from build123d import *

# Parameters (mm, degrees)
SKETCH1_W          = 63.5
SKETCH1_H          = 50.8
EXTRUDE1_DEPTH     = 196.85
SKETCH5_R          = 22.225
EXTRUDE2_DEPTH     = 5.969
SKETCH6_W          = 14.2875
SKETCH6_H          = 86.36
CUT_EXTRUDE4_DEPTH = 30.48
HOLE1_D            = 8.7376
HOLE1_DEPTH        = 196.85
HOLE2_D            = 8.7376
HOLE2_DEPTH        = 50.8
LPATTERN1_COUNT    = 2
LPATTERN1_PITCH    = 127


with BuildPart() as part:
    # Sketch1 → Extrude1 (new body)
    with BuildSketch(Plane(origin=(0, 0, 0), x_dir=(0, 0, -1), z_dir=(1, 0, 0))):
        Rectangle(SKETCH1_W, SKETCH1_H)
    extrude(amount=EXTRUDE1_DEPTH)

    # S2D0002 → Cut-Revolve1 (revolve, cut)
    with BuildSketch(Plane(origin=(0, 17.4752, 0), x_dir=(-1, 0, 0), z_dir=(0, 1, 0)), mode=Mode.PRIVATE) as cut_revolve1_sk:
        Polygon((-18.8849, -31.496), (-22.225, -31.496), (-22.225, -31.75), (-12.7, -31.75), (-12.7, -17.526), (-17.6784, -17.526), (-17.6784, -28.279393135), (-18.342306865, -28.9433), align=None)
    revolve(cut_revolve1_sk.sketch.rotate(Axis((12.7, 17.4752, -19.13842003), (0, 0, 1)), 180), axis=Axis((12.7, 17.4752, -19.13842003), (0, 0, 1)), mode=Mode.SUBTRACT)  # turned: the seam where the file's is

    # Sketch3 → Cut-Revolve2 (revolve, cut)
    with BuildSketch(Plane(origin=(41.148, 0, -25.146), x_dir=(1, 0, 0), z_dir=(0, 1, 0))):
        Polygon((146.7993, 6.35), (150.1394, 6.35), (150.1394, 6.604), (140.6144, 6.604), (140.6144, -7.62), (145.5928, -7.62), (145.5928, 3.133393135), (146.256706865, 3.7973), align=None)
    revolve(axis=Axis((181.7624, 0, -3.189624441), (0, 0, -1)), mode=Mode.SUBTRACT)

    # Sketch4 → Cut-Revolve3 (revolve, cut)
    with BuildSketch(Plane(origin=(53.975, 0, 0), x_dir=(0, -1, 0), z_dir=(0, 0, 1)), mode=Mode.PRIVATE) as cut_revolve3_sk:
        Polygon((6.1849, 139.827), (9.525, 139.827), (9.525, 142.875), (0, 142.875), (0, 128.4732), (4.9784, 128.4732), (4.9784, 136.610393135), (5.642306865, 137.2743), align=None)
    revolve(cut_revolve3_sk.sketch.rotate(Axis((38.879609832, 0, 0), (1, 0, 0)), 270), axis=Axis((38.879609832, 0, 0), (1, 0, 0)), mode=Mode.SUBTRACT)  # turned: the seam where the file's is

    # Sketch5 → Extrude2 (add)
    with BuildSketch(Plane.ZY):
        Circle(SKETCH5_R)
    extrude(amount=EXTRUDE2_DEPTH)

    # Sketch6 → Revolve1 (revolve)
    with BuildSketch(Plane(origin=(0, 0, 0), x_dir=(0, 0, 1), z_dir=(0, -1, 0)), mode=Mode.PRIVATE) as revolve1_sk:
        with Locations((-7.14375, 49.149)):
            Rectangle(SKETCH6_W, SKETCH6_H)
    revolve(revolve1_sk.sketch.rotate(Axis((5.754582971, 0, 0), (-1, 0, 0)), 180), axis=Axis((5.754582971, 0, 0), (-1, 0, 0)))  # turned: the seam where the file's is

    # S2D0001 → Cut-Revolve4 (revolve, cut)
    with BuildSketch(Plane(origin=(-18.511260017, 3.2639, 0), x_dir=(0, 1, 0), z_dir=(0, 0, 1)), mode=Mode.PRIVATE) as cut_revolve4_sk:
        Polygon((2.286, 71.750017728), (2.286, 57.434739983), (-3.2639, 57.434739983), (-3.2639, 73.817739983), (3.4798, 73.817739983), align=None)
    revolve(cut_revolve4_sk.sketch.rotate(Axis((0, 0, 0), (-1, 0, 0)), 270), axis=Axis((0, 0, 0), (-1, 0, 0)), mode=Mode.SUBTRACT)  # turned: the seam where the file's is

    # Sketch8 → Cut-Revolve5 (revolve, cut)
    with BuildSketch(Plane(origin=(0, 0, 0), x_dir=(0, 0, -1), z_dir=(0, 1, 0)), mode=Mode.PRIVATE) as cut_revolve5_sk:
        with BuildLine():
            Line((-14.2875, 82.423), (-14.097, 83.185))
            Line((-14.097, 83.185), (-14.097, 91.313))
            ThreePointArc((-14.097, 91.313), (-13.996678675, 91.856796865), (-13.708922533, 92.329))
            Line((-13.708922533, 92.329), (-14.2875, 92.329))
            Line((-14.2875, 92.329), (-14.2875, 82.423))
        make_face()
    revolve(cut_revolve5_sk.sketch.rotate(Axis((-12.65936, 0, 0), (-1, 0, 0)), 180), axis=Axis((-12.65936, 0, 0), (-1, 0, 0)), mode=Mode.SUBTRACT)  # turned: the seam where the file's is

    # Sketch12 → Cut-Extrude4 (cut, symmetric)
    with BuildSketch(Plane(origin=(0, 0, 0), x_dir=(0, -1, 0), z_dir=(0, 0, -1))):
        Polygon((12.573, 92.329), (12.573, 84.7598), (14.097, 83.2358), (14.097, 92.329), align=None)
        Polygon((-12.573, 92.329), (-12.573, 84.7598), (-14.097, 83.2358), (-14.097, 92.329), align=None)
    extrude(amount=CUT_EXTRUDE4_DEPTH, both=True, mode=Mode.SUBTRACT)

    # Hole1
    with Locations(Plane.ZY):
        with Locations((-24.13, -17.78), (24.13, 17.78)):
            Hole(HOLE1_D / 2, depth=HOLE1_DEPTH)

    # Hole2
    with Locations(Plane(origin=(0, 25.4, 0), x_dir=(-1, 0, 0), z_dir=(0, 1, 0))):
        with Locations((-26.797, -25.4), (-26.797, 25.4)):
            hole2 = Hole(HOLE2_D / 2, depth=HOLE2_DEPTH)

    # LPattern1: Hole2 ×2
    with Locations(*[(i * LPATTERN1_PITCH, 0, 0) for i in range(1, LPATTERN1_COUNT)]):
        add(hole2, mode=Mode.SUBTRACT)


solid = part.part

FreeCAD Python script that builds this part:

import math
import FreeCAD as App
import Part
import Sketcher
from FreeCAD import Vector
Q = App.Units.Quantity

doc = App.newDocument("Part")
body = doc.addObject("PartDesign::Body", "Body")

# Sketch on YZ plane
sketch1 = doc.addObject("Sketcher::SketchObject", "Sketch")
body.addObject(sketch1)
sketch1.AttachmentSupport = (doc.YZ_Plane, [""])
sketch1.MapMode = "FlatFace"
sketch1.addGeometry([
    Part.LineSegment(Vector(25, 32, 0), Vector(-25, 32, 0)),
    Part.LineSegment(Vector(-25, 32, 0), Vector(-25, -32, 0)),
    Part.LineSegment(Vector(-25, -32, 0), Vector(25, -32, 0)),
    Part.LineSegment(Vector(25, -32, 0), Vector(25, 32, 0)),
], False)
sketch1.addConstraint([
    Sketcher.Constraint("Coincident", 0, 2, 1, 1),
    Sketcher.Constraint("Coincident", 1, 2, 2, 1),
    Sketcher.Constraint("Coincident", 2, 2, 3, 1),
    Sketcher.Constraint("Coincident", 3, 2, 0, 1),
    Sketcher.Constraint("Horizontal", 0),
    Sketcher.Constraint("Vertical", 1),
    Sketcher.Constraint("Horizontal", 2),
    Sketcher.Constraint("Vertical", 3),
    Sketcher.Constraint("Symmetric", 0, 2, 2, 2, -1, 1),
    Sketcher.Constraint("DistanceX", 0, 2, 0, 1, Q("2 in")),
    Sketcher.Constraint("DistanceY", 1, 2, 1, 1, Q("2.5 in")),
])
pad1 = doc.addObject("PartDesign::Pad", "Pad")
body.addObject(pad1)
pad1.Profile = sketch1
pad1.Length = Q("7.75 in")

# Sketch on XZ plane
sketch2 = doc.addObject("Sketcher::SketchObject", "Sketch001")
body.addObject(sketch2)
sketch2.AttachmentSupport = (doc.XZ_Plane, [""])
sketch2.MapMode = "FlatFace"
sketch2.AttachmentOffset = App.Placement(Vector(0, 0, -0.688 * 25.4), App.Rotation())
sketch2.addGeometry([
    Part.LineSegment(Vector(18.88, -31.5, 0), Vector(22.23, -31.5, 0)),  # 0
    Part.LineSegment(Vector(22.23, -31.5, 0), Vector(22.23, -31.75, 0)),  # 1
    Part.LineSegment(Vector(22.23, -31.75, 0), Vector(12.7, -31.75, 0)),  # 2
    Part.LineSegment(Vector(12.7, -31.75, 0), Vector(12.7, -17.53, 0)),  # 3
    Part.LineSegment(Vector(12.7, -17.53, 0), Vector(17.68, -17.53, 0)),  # 4
    Part.LineSegment(Vector(17.68, -17.53, 0), Vector(17.68, -28.28, 0)),  # 5
    Part.LineSegment(Vector(17.68, -28.28, 0), Vector(18.34, -28.94, 0)),  # 6
    Part.LineSegment(Vector(18.34, -28.94, 0), Vector(18.88, -31.5, 0)),  # 7
], False)
sketch2.addGeometry(Part.LineSegment(Vector(12.7, -31.75, 0), Vector(12.7, -17.53, 0)), True)  # axis
sketch2.addConstraint([
    Sketcher.Constraint("Coincident", 0, 2, 1, 1),
    Sketcher.Constraint("Coincident", 1, 2, 2, 1),
    Sketcher.Constraint("Coincident", 2, 2, 3, 1),
    Sketcher.Constraint("Coincident", 3, 2, 4, 1),
    Sketcher.Constraint("Coincident", 4, 2, 5, 1),
    Sketcher.Constraint("Coincident", 5, 2, 6, 1),
    Sketcher.Constraint("Coincident", 6, 2, 7, 1),
    Sketcher.Constraint("Coincident", 7, 2, 0, 1),
    Sketcher.Constraint("Horizontal", 0),
    Sketcher.Constraint("Vertical", 1),
    Sketcher.Constraint("Horizontal", 2),
    Sketcher.Constraint("Vertical", 3),
    Sketcher.Constraint("Horizontal", 4),
    Sketcher.Constraint("Vertical", 5),
    Sketcher.Constraint("Vertical", 8),
    Sketcher.Constraint("Coincident", 8, 1, 2, 2),
    Sketcher.Constraint("Horizontal", 4, 2, 8, 2),
    Sketcher.Constraint("Angle", 6, Q("-45 deg")),
    Sketcher.Constraint("Angle", 7, Q("-78 deg")),
    Sketcher.Constraint("DistanceY", 1, 2, 1, 1, Q("0.01 in")),
    Sketcher.Constraint("DistanceY", 3, 1, 3, 2, Q("0.56 in")),
    Sketcher.Constraint("DistanceX", -1, 1, 2, 2, Q("0.5 in")),
    Sketcher.Constraint("DistanceX", 2, 2, 2, 1, Q("0.375 in")),
    Sketcher.Constraint("DistanceX", 4, 1, 4, 2, Q("0.196 in")),
    Sketcher.Constraint("DistanceY", 0, 2, -1, 1, Q("1.24 in")),
    Sketcher.Constraint("DistanceX", 0, 1, 0, 2, Q("0.1315 in")),
    Sketcher.Constraint("DistanceY", 6, 2, -1, 1, Q("1.1395 in")),
])
groove = doc.addObject("PartDesign::Groove", "Groove")
body.addObject(groove)
groove.Profile = sketch2
groove.ReferenceAxis = (sketch2, ["Axis0"])
groove.Angle = 360

# Sketch on XZ plane
sketch3 = doc.addObject("Sketcher::SketchObject", "Sketch002")
body.addObject(sketch3)
sketch3.AttachmentSupport = (doc.XZ_Plane, [""])
sketch3.MapMode = "FlatFace"
sketch3.addGeometry([
    Part.LineSegment(Vector(187.95, -31.5, 0), Vector(191.29, -31.5, 0)),  # 0
    Part.LineSegment(Vector(191.29, -31.5, 0), Vector(191.29, -31.75, 0)),  # 1
    Part.LineSegment(Vector(191.29, -31.75, 0), Vector(181.76, -31.75, 0)),  # 2
    Part.LineSegment(Vector(181.76, -31.75, 0), Vector(181.76, -17.53, 0)),  # 3
    Part.LineSegment(Vector(181.76, -17.53, 0), Vector(186.74, -17.53, 0)),  # 4
    Part.LineSegment(Vector(186.74, -17.53, 0), Vector(186.74, -28.28, 0)),  # 5
    Part.LineSegment(Vector(186.74, -28.28, 0), Vector(187.4, -28.94, 0)),  # 6
    Part.LineSegment(Vector(187.4, -28.94, 0), Vector(187.95, -31.5, 0)),  # 7
], False)
sketch3.addGeometry(Part.LineSegment(Vector(181.76, -17.53, 0), Vector(181.76, -31.75, 0)), True)  # axis
sketch3.addConstraint([
    Sketcher.Constraint("Coincident", 0, 2, 1, 1),
    Sketcher.Constraint("Coincident", 1, 2, 2, 1),
    Sketcher.Constraint("Coincident", 2, 2, 3, 1),
    Sketcher.Constraint("Coincident", 3, 2, 4, 1),
    Sketcher.Constraint("Coincident", 4, 2, 5, 1),
    Sketcher.Constraint("Coincident", 5, 2, 6, 1),
    Sketcher.Constraint("Coincident", 6, 2, 7, 1),
    Sketcher.Constraint("Coincident", 7, 2, 0, 1),
    Sketcher.Constraint("Horizontal", 0),
    Sketcher.Constraint("Vertical", 1),
    Sketcher.Constraint("Horizontal", 2),
    Sketcher.Constraint("Vertical", 3),
    Sketcher.Constraint("Horizontal", 4),
    Sketcher.Constraint("Vertical", 5),
    Sketcher.Constraint("Vertical", 8),
    Sketcher.Constraint("Coincident", 8, 1, 3, 2),
    Sketcher.Constraint("Horizontal", 1, 2, 8, 2),
    Sketcher.Constraint("Angle", 6, Q("-45 deg")),
    Sketcher.Constraint("Angle", 7, Q("-78 deg")),
    Sketcher.Constraint("DistanceY", 1, 2, 1, 1, Q("0.01 in")),
    Sketcher.Constraint("DistanceY", 3, 1, 3, 2, Q("0.56 in")),
    Sketcher.Constraint("DistanceX", 2, 2, 2, 1, Q("0.375 in")),
    Sketcher.Constraint("DistanceX", 4, 1, 4, 2, Q("0.196 in")),
    Sketcher.Constraint("DistanceY", 0, 2, -1, 1, Q("1.24 in")),
    Sketcher.Constraint("DistanceX", 0, 1, 0, 2, Q("0.1315 in")),
    Sketcher.Constraint("DistanceX", -1, 1, 0, 2, Q("7.531 in")),
    Sketcher.Constraint("DistanceY", 6, 2, -1, 1, Q("1.1395 in")),
])
groove2 = doc.addObject("PartDesign::Groove", "Groove001")
body.addObject(groove2)
groove2.Profile = sketch3
groove2.ReferenceAxis = (sketch3, ["Axis0"])
groove2.Angle = 360

# Sketch on XY plane
sketch4 = doc.addObject("Sketcher::SketchObject", "Sketch003")
body.addObject(sketch4)
sketch4.AttachmentSupport = (doc.XY_Plane, [""])
sketch4.MapMode = "FlatFace"
sketch4.addGeometry([
    Part.LineSegment(Vector(193.8, -6.2, 0), Vector(193.8, -9.5, 0)),  # 0
    Part.LineSegment(Vector(193.8, -9.5, 0), Vector(196.8, -9.5, 0)),  # 1
    Part.LineSegment(Vector(196.8, -9.5, 0), Vector(196.8, 0, 0)),  # 2
    Part.LineSegment(Vector(196.8, 0, 0), Vector(182.4, 0, 0)),  # 3
    Part.LineSegment(Vector(182.4, 0, 0), Vector(182.4, -5, 0)),  # 4
    Part.LineSegment(Vector(182.4, -5, 0), Vector(190.6, -5, 0)),  # 5
    Part.LineSegment(Vector(190.6, -5, 0), Vector(191.2, -5.6, 0)),  # 6
    Part.LineSegment(Vector(191.2, -5.6, 0), Vector(193.8, -6.2, 0)),  # 7
], False)
sketch4.addConstraint([
    Sketcher.Constraint("Coincident", 0, 2, 1, 1),
    Sketcher.Constraint("Coincident", 1, 2, 2, 1),
    Sketcher.Constraint("Coincident", 2, 2, 3, 1),
    Sketcher.Constraint("Coincident", 3, 2, 4, 1),
    Sketcher.Constraint("Coincident", 4, 2, 5, 1),
    Sketcher.Constraint("Coincident", 5, 2, 6, 1),
    Sketcher.Constraint("Coincident", 6, 2, 7, 1),
    Sketcher.Constraint("Coincident", 7, 2, 0, 1),
    Sketcher.Constraint("Vertical", 0),
    Sketcher.Constraint("Horizontal", 1),
    Sketcher.Constraint("Vertical", 2),
    Sketcher.Constraint("Horizontal", 3),
    Sketcher.Constraint("Vertical", 4),
    Sketcher.Constraint("Horizontal", 5),
    Sketcher.Constraint("PointOnObject", 2, 2, -1),
    Sketcher.Constraint("Angle", 6, Q("-45 deg")),
    Sketcher.Constraint("Angle", 7, Q("-12 deg")),
    Sketcher.Constraint("DistanceX", 1, 1, 1, 2, Q("0.12 in")),
    Sketcher.Constraint("DistanceX", 3, 2, 3, 1, Q("0.567 in")),
    Sketcher.Constraint("DistanceY", 2, 1, 2, 2, Q("0.375 in")),
    Sketcher.Constraint("DistanceY", 4, 2, 4, 1, Q("0.196 in")),
    Sketcher.Constraint("DistanceX", -1, 1, 0, 2, Q("7.63 in")),
    Sketcher.Constraint("DistanceY", 0, 2, 0, 1, Q("0.1315 in")),
    Sketcher.Constraint("DistanceX", -1, 1, 6, 2, Q("7.5295 in")),
])
groove3 = doc.addObject("PartDesign::Groove", "Groove002")
body.addObject(groove3)
groove3.Profile = sketch4
groove3.ReferenceAxis = (sketch4, ["H_Axis"])
groove3.Angle = 360

# Sketch on YZ plane
sketch5 = doc.addObject("Sketcher::SketchObject", "Sketch004")
body.addObject(sketch5)
sketch5.AttachmentSupport = (doc.YZ_Plane, [""])
sketch5.MapMode = "FlatFace"
sketch5.addGeometry(Part.Circle(Vector(0, 0, 0), Vector(0, 0, 1), 22), False)
sketch5.addConstraint([
    Sketcher.Constraint("Coincident", 0, 3, -1, 1),
    Sketcher.Constraint("Diameter", 0, Q("1.75 in")),
])
pad2 = doc.addObject("PartDesign::Pad", "Pad001")
body.addObject(pad2)
pad2.Profile = sketch5
pad2.Length = Q("0.235 in")
pad2.Reversed = True

# Sketch on XZ plane
sketch6 = doc.addObject("Sketcher::SketchObject", "Sketch005")
body.addObject(sketch6)
sketch6.AttachmentSupport = (doc.XZ_Plane, [""])
sketch6.MapMode = "FlatFace"
sketch6.addGeometry([
    Part.LineSegment(Vector(-92, -14, 0), Vector(-6, -14, 0)),
    Part.LineSegment(Vector(-6, -14, 0), Vector(-6, 0, 0)),
    Part.LineSegment(Vector(-6, 0, 0), Vector(-92, 0, 0)),
    Part.LineSegment(Vector(-92, 0, 0), Vector(-92, -14, 0)),
], False)
sketch6.addConstraint([
    Sketcher.Constraint("Coincident", 0, 2, 1, 1),
    Sketcher.Constraint("Coincident", 1, 2, 2, 1),
    Sketcher.Constraint("Coincident", 2, 2, 3, 1),
    Sketcher.Constraint("Coincident", 3, 2, 0, 1),
    Sketcher.Constraint("Horizontal", 0),
    Sketcher.Constraint("Vertical", 1),
    Sketcher.Constraint("Horizontal", 2),
    Sketcher.Constraint("Vertical", 3),
    Sketcher.Constraint("PointOnObject", 1, 2, -1),
    Sketcher.Constraint("DistanceX", 0, 1, 0, 2, Q("3.4 in")),
    Sketcher.Constraint("DistanceY", 1, 1, 1, 2, Q("0.5625 in")),
    Sketcher.Constraint("DistanceX", 0, 2, -1, 1, Q("0.235 in")),
])
revolution = doc.addObject("PartDesign::Revolution", "Revolution")
body.addObject(revolution)
revolution.Profile = sketch6
revolution.ReferenceAxis = (sketch6, ["H_Axis"])
revolution.Angle = 360

# Sketch on XY plane
sketch7 = doc.addObject("Sketcher::SketchObject", "Sketch006")
body.addObject(sketch7)
sketch7.AttachmentSupport = (doc.XY_Plane, [""])
sketch7.MapMode = "FlatFace"
sketch7.addGeometry([
    Part.LineSegment(Vector(-75.9, 5.5, 0), Vector(-90.3, 5.5, 0)),  # 0
    Part.LineSegment(Vector(-90.3, 5.5, 0), Vector(-92.3, 6.7, 0)),  # 1
    Part.LineSegment(Vector(-92.3, 6.7, 0), Vector(-92.3, 0, 0)),  # 2
    Part.LineSegment(Vector(-92.3, 0, 0), Vector(-75.9, 0, 0)),  # 3
    Part.LineSegment(Vector(-75.9, 0, 0), Vector(-75.9, 5.5, 0)),  # 4
], False)
sketch7.addConstraint([
    Sketcher.Constraint("Coincident", 0, 2, 1, 1),
    Sketcher.Constraint("Coincident", 1, 2, 2, 1),
    Sketcher.Constraint("Coincident", 2, 2, 3, 1),
    Sketcher.Constraint("Coincident", 3, 2, 4, 1),
    Sketcher.Constraint("Coincident", 4, 2, 0, 1),
    Sketcher.Constraint("Horizontal", 0),
    Sketcher.Constraint("Vertical", 2),
    Sketcher.Constraint("Horizontal", 3),
    Sketcher.Constraint("Vertical", 4),
    Sketcher.Constraint("PointOnObject", 2, 2, -1),
    Sketcher.Constraint("Angle", 1, Q("150 deg")),
    Sketcher.Constraint("DistanceX", 3, 1, 3, 2, Q("0.645 in")),
    Sketcher.Constraint("DistanceX", 3, 2, -1, 1, Q("2.99 in")),
    Sketcher.Constraint("Distance", 1, Q("0.094 in")),
    Sketcher.Constraint("DistanceY", 2, 2, 2, 1, Q("0.2655 in")),
])
groove4 = doc.addObject("PartDesign::Groove", "Groove003")
body.addObject(groove4)
groove4.Profile = sketch7
groove4.ReferenceAxis = (sketch7, ["H_Axis"])
groove4.Angle = 360

# Sketch on XZ plane
sketch8 = doc.addObject("Sketcher::SketchObject", "Sketch007")
body.addObject(sketch8)
sketch8.AttachmentSupport = (doc.XZ_Plane, [""])
sketch8.MapMode = "FlatFace"
sketch8.addGeometry([
    Part.LineSegment(Vector(-82.4, 14.3, 0), Vector(-83.2, 14.1, 0)),  # 0
    Part.LineSegment(Vector(-83.2, 14.1, 0), Vector(-91.3, 14.1, 0)),  # 1
    Part.ArcOfCircle(Part.Circle(Vector(-91.3, 12.6, 0), Vector(0, 0, 1), 1.5), math.radians(90), math.radians(132)),  # 2
    Part.LineSegment(Vector(-92.3, 13.7, 0), Vector(-92.3, 14.3, 0)),  # 3
    Part.LineSegment(Vector(-92.3, 14.3, 0), Vector(-82.4, 14.3, 0)),  # 4
], False)
sketch8.addConstraint([
    Sketcher.Constraint("Coincident", 0, 2, 1, 1),
    Sketcher.Constraint("Tangent", 1, 2, 2, 1),
    Sketcher.Constraint("Coincident", 2, 2, 3, 1),
    Sketcher.Constraint("Coincident", 3, 2, 4, 1),
    Sketcher.Constraint("Coincident", 4, 2, 0, 1),
    Sketcher.Constraint("Horizontal", 1),
    Sketcher.Constraint("Vertical", 3),
    Sketcher.Constraint("Horizontal", 4),
    Sketcher.Constraint("Radius", 2, Q("0.06 in")),
    Sketcher.Constraint("DistanceX", 1, 2, 1, 1, Q("0.32 in")),
    Sketcher.Constraint("DistanceX", 4, 1, 4, 2, Q("0.39 in")),
    Sketcher.Constraint("DistanceX", 2, 2, 1, 2, Q("0.04 in")),
    Sketcher.Constraint("DistanceX", 2, 3, -1, 1, Q("3.595 in")),
    Sketcher.Constraint("DistanceY", -1, 1, 2, 3, Q("0.495 in")),
    Sketcher.Constraint("DistanceY", -1, 1, 3, 2, Q("0.5625 in")),
])
groove5 = doc.addObject("PartDesign::Groove", "Groove004")
body.addObject(groove5)
groove5.Profile = sketch8
groove5.ReferenceAxis = (sketch8, ["H_Axis"])
groove5.Angle = 360

# Sketch on XY plane
sketch9 = doc.addObject("Sketcher::SketchObject", "Sketch008")
body.addObject(sketch9)
sketch9.AttachmentSupport = (doc.XY_Plane, [""])
sketch9.MapMode = "FlatFace"
sketch9.addGeometry([
    Part.LineSegment(Vector(-92.3, -12.6, 0), Vector(-84.8, -12.6, 0)),  # 0
    Part.LineSegment(Vector(-84.8, -12.6, 0), Vector(-83.2, -14.1, 0)),  # 1
    Part.LineSegment(Vector(-83.2, -14.1, 0), Vector(-92.3, -14.1, 0)),  # 2
    Part.LineSegment(Vector(-92.3, -14.1, 0), Vector(-92.3, -12.6, 0)),  # 3
    Part.LineSegment(Vector(-84.8, 12.6, 0), Vector(-92.3, 12.6, 0)),  # 4
    Part.LineSegment(Vector(-92.3, 12.6, 0), Vector(-92.3, 14.1, 0)),  # 5
    Part.LineSegment(Vector(-92.3, 14.1, 0), Vector(-83.2, 14.1, 0)),  # 6
    Part.LineSegment(Vector(-83.2, 14.1, 0), Vector(-84.8, 12.6, 0)),  # 7
], False)
sketch9.addConstraint([
    Sketcher.Constraint("Coincident", 0, 2, 1, 1),
    Sketcher.Constraint("Coincident", 1, 2, 2, 1),
    Sketcher.Constraint("Coincident", 2, 2, 3, 1),
    Sketcher.Constraint("Coincident", 3, 2, 0, 1),
    Sketcher.Constraint("Coincident", 4, 2, 5, 1),
    Sketcher.Constraint("Coincident", 5, 2, 6, 1),
    Sketcher.Constraint("Coincident", 6, 2, 7, 1),
    Sketcher.Constraint("Coincident", 7, 2, 4, 1),
    Sketcher.Constraint("Horizontal", 0),
    Sketcher.Constraint("Horizontal", 2),
    Sketcher.Constraint("Vertical", 3),
    Sketcher.Constraint("Horizontal", 4),
    Sketcher.Constraint("Vertical", 5),
    Sketcher.Constraint("Horizontal", 6),
    Sketcher.Constraint("Symmetric", 3, 2, 4, 2, -1),
    Sketcher.Constraint("Symmetric", 1, 2, 6, 2, -1),
    Sketcher.Constraint("Perpendicular", 1, 7),
    Sketcher.Constraint("Vertical", 0, 2, 7, 2),
    Sketcher.Constraint("DistanceY", 3, 1, 3, 2, Q("0.06 in")),
    Sketcher.Constraint("DistanceX", 0, 1, 0, 2, Q("0.298 in")),
    Sketcher.Constraint("DistanceY", 3, 2, 4, 2, Q("0.99 in")),
    Sketcher.Constraint("DistanceX", 0, 2, -1, 1, Q("3.337 in")),
])
pocket1 = doc.addObject("PartDesign::Pocket", "Pocket")
body.addObject(pocket1)
pocket1.Profile = sketch9
pocket1.Length = Q("2.4 in")
pocket1.Midplane = True

# Sketch on YZ plane
sketch10 = doc.addObject("Sketcher::SketchObject", "Sketch009")
body.addObject(sketch10)
sketch10.AttachmentSupport = (doc.YZ_Plane, [""])
sketch10.MapMode = "FlatFace"
sketch10.addGeometry([
    Part.Circle(Vector(-17.8, -24.1, 0), Vector(0, 0, 1), 4.4),
    Part.Circle(Vector(17.8, 24.1, 0), Vector(0, 0, 1), 4.4),
], False)
sketch10.addConstraint([
    Sketcher.Constraint("Equal", 0, 1),
    Sketcher.Constraint("Symmetric", 0, 3, 1, 3, -1, 1),
    Sketcher.Constraint("Diameter", 0, Q("0.344 in")),
    Sketcher.Constraint("DistanceX", 0, 3, -1, 1, Q("0.7 in")),
    Sketcher.Constraint("DistanceY", 0, 3, 1, 3, Q("1.9 in")),
])
doc.recompute()
hole = doc.addObject("PartDesign::Hole", "Hole")
body.addObject(hole)
hole.Profile = sketch10
hole.ThreadType = "None"
hole.Diameter = Q("0.344 in")
hole.DepthType = "Dimension"
hole.Depth = Q("7.75 in")
hole.DrillPoint = "Flat"
hole.Reversed = True

# Sketch on XZ plane
sketch11 = doc.addObject("Sketcher::SketchObject", "Sketch010")
body.addObject(sketch11)
sketch11.AttachmentSupport = (doc.XZ_Plane, [""])
sketch11.MapMode = "FlatFace"
sketch11.AttachmentOffset = App.Placement(Vector(0, 0, -1 * 25.4), App.Rotation())
sketch11.addGeometry([
    Part.Circle(Vector(26.8, -25.4, 0), Vector(0, 0, 1), 4.4),
    Part.Circle(Vector(26.8, 25.4, 0), Vector(0, 0, 1), 4.4),
], False)
sketch11.addConstraint([
    Sketcher.Constraint("Equal", 0, 1),
    Sketcher.Constraint("Symmetric", 0, 3, 1, 3, -1),
    Sketcher.Constraint("Diameter", 0, Q("0.344 in")),
    Sketcher.Constraint("DistanceY", 0, 3, -1, 1, Q("1 in")),
    Sketcher.Constraint("DistanceX", -1, 1, 0, 3, Q("1.055 in")),
])
doc.recompute()
hole2 = doc.addObject("PartDesign::Hole", "Hole001")
body.addObject(hole2)
hole2.Profile = sketch11
hole2.ThreadType = "None"
hole2.Diameter = Q("0.344 in")
hole2.DepthType = "Dimension"
hole2.Depth = Q("2 in")
hole2.DrillPoint = "Flat"
hole2.Reversed = True
doc.recompute()

linearpattern = doc.addObject("PartDesign::LinearPattern", "LinearPattern")
body.addObject(linearpattern)
linearpattern.Originals = [hole2]
linearpattern.Direction = (doc.X_Axis, [""])
linearpattern.Mode = "offset"
linearpattern.Offset = Q("5 in")
linearpattern.Occurrences = 2
body.Tip = linearpattern

doc.recompute()
